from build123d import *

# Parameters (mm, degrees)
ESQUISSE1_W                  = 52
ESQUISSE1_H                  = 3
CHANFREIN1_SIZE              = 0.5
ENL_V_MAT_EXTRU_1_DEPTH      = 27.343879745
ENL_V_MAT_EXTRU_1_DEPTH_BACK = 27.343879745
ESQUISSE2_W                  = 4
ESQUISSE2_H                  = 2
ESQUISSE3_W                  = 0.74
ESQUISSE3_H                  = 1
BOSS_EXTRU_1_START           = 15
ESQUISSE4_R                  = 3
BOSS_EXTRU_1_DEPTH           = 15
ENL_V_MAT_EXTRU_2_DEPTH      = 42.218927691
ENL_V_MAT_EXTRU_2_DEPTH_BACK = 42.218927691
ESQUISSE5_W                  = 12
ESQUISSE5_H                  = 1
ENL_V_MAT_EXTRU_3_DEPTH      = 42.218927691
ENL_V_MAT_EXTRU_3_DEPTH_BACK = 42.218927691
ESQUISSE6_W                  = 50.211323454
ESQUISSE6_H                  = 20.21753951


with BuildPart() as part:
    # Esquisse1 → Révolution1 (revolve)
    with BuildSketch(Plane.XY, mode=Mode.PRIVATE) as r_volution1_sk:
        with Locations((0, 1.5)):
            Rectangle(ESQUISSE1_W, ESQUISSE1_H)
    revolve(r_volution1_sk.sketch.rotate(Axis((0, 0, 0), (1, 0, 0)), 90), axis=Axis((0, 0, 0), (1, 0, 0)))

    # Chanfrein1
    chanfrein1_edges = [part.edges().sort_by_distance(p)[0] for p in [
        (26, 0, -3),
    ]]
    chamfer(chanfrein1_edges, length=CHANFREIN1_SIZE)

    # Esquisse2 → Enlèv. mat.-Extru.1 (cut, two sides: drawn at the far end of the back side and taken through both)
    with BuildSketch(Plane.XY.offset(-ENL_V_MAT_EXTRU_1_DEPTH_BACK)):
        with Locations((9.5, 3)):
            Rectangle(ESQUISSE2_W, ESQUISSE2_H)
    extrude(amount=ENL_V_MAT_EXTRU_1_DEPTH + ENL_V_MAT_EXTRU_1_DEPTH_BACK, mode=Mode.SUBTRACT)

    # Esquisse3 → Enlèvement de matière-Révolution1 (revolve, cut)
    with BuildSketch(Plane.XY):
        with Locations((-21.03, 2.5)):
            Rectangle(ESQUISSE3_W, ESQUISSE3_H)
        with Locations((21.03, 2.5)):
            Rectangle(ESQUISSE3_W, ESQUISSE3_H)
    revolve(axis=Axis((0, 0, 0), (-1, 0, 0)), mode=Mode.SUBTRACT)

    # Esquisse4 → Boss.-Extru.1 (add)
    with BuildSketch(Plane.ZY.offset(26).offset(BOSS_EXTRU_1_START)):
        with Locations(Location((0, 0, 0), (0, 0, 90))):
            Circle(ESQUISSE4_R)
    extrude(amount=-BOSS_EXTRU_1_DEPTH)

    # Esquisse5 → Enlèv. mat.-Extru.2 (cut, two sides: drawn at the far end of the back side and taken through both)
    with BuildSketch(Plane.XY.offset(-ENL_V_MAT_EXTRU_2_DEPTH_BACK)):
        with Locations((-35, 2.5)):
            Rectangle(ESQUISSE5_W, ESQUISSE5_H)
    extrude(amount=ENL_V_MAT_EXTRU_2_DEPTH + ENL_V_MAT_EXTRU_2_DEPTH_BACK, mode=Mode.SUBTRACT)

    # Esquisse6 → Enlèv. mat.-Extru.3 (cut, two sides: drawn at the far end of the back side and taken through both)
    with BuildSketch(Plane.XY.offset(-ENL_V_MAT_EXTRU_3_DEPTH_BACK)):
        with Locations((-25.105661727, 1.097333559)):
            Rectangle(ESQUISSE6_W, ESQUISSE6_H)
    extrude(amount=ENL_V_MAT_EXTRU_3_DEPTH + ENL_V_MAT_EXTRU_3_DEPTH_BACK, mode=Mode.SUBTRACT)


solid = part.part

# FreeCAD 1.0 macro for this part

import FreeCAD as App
import Part
import Sketcher

V = App.Vector
Q = App.Units.Quantity


def edges_at(feature, points):
    """Names of the edges that pass closest to the given points."""
    edges = feature.Shape.Edges
    near = lambda p: min(range(len(edges)), key=lambda i: edges[i].distToShape(Part.Vertex(*p))[0])
    return sorted({f"Edge{near(p) + 1}" for p in points})

doc = App.newDocument("Part")
body = doc.addObject("PartDesign::Body", "Body")

sketch1 = body.newObject("Sketcher::SketchObject", "Sketch")
sketch1.AttachmentSupport = (doc.getObject("XY_Plane"), [""])
sketch1.MapMode = "FlatFace"
sketch1.addGeometry([
    Part.LineSegment(V(-26, 3, 0), V(-26, 0, 0)),
    Part.LineSegment(V(-26, 0, 0), V(26, 0, 0)),
    Part.LineSegment(V(26, 0, 0), V(26, 3, 0)),
    Part.LineSegment(V(26, 3, 0), V(-26, 3, 0)),
], False)
sketch1.addConstraint([
    Sketcher.Constraint("Coincident", 0, 2, 1, 1),
    Sketcher.Constraint("Coincident", 1, 2, 2, 1),
    Sketcher.Constraint("Coincident", 2, 2, 3, 1),
    Sketcher.Constraint("Coincident", 3, 2, 0, 1),
    Sketcher.Constraint("Vertical", 0),
    Sketcher.Constraint("Horizontal", 1),
    Sketcher.Constraint("Vertical", 2),
    Sketcher.Constraint("Horizontal", 3),
    Sketcher.Constraint("Symmetric", 0, 2, 1, 2, -1, 1),
    Sketcher.Constraint("DistanceX", 1, 1, 1, 2, Q("52 mm")),
    Sketcher.Constraint("DistanceY", 0, 2, 0, 1, Q("3 mm")),
])
revolution = body.newObject("PartDesign::Revolution", "Revolution")
revolution.Profile = sketch1
revolution.ReferenceAxis = (sketch1, ["H_Axis"])
revolution.Angle = 360
doc.recompute()

chamfer = body.newObject("PartDesign::Chamfer", "Chamfer")
chamfer.Base = (revolution, edges_at(revolution, [(26, 0, -3)]))
chamfer.Size = 0.5

sketch2 = body.newObject("Sketcher::SketchObject", "Sketch001")
sketch2.AttachmentSupport = (doc.getObject("XY_Plane"), [""])
sketch2.MapMode = "FlatFace"
sketch2.addGeometry([
    Part.LineSegment(V(7.5, 4, 0), V(7.5, 2, 0)),
    Part.LineSegment(V(7.5, 2, 0), V(11.5, 2, 0)),
    Part.LineSegment(V(11.5, 2, 0), V(11.5, 4, 0)),
    Part.LineSegment(V(11.5, 4, 0), V(7.5, 4, 0)),
], False)
sketch2.addConstraint([
    Sketcher.Constraint("Coincident", 0, 2, 1, 1),
    Sketcher.Constraint("Coincident", 1, 2, 2, 1),
    Sketcher.Constraint("Coincident", 2, 2, 3, 1),
    Sketcher.Constraint("Coincident", 3, 2, 0, 1),
    Sketcher.Constraint("Vertical", 0),
    Sketcher.Constraint("Horizontal", 1),
    Sketcher.Constraint("Vertical", 2),
    Sketcher.Constraint("Horizontal", 3),
    Sketcher.Constraint("DistanceX", 1, 1, 1, 2, Q("4 mm")),
    Sketcher.Constraint("DistanceY", 0, 2, 0, 1, Q("2 mm")),
    Sketcher.Constraint("DistanceY", -1, 1, 0, 2, Q("2 mm")),
    Sketcher.Constraint("DistanceX", -1, 1, 0, 2, Q("7.5 mm")),
])
pocket1 = body.newObject("PartDesign::Pocket", "Pocket")
pocket1.Profile = sketch2
pocket1.Type = "ThroughAll"
pocket1.Midplane = True

sketch3 = body.newObject("Sketcher::SketchObject", "Sketch002")
sketch3.AttachmentSupport = (doc.getObject("XY_Plane"), [""])
sketch3.MapMode = "FlatFace"
sketch3.addGeometry([
    Part.LineSegment(V(-21.4, 3, 0), V(-21.4, 2, 0)),
    Part.LineSegment(V(-21.4, 2, 0), V(-20.66, 2, 0)),
    Part.LineSegment(V(-20.66, 2, 0), V(-20.66, 3, 0)),
    Part.LineSegment(V(-20.66, 3, 0), V(-21.4, 3, 0)),
    Part.LineSegment(V(20.66, 3, 0), V(20.66, 2, 0)),
    Part.LineSegment(V(20.66, 2, 0), V(21.4, 2, 0)),
    Part.LineSegment(V(21.4, 2, 0), V(21.4, 3, 0)),
    Part.LineSegment(V(21.4, 3, 0), V(20.66, 3, 0)),
], False)
sketch3.addConstraint([
    Sketcher.Constraint("Coincident", 0, 2, 1, 1),
    Sketcher.Constraint("Coincident", 1, 2, 2, 1),
    Sketcher.Constraint("Coincident", 2, 2, 3, 1),
    Sketcher.Constraint("Coincident", 3, 2, 0, 1),
    Sketcher.Constraint("Coincident", 4, 2, 5, 1),
    Sketcher.Constraint("Coincident", 5, 2, 6, 1),
    Sketcher.Constraint("Coincident", 6, 2, 7, 1),
    Sketcher.Constraint("Coincident", 7, 2, 4, 1),
    Sketcher.Constraint("Vertical", 0),
    Sketcher.Constraint("Horizontal", 1),
    Sketcher.Constraint("Vertical", 2),
    Sketcher.Constraint("Horizontal", 3),
    Sketcher.Constraint("Vertical", 4),
    Sketcher.Constraint("Horizontal", 5),
    Sketcher.Constraint("Vertical", 6),
    Sketcher.Constraint("Horizontal", 7),
    Sketcher.Constraint("Symmetric", 1, 2, 4, 2, -2),
    Sketcher.Constraint("Symmetric", 3, 2, 6, 2, -2),
    Sketcher.Constraint("DistanceY", 0, 2, 0, 1, Q("1 mm")),
    Sketcher.Constraint("DistanceY", -1, 1, 0, 2, Q("2 mm")),
    Sketcher.Constraint("DistanceX", 1, 1, 1, 2, Q("0.74 mm")),
    Sketcher.Constraint("DistanceX", 0, 2, -1, 1, Q("21.4 mm")),
])
groove = body.newObject("PartDesign::Groove", "Groove")
groove.Profile = sketch3
groove.ReferenceAxis = (sketch3, ["H_Axis"])
groove.Angle = 360

sketch4 = body.newObject("Sketcher::SketchObject", "Sketch003")
sketch4.AttachmentSupport = (doc.getObject("YZ_Plane"), [""])
sketch4.MapMode = "FlatFace"
sketch4.AttachmentOffset = App.Placement(V(0, 0, -41), App.Rotation())
sketch4.addGeometry(Part.Circle(V(0, 0, 0), V(0, 0, 1), 3), False)
sketch4.addConstraint([
    Sketcher.Constraint("Coincident", 0, 3, -1, 1),
    Sketcher.Constraint("Diameter", 0, Q("6 mm")),
])
pad1 = body.newObject("PartDesign::Pad", "Pad")
pad1.Profile = sketch4
pad1.Length = 15

sketch5 = body.newObject("Sketcher::SketchObject", "Sketch004")
sketch5.AttachmentSupport = (doc.getObject("XY_Plane"), [""])
sketch5.MapMode = "FlatFace"
sketch5.addGeometry([
    Part.LineSegment(V(-41, 3, 0), V(-41, 2, 0)),
    Part.LineSegment(V(-41, 2, 0), V(-29, 2, 0)),
    Part.LineSegment(V(-29, 2, 0), V(-29, 3, 0)),
    Part.LineSegment(V(-29, 3, 0), V(-41, 3, 0)),
], False)
sketch5.addConstraint([
    Sketcher.Constraint("Coincident", 0, 2, 1, 1),
    Sketcher.Constraint("Coincident", 1, 2, 2, 1),
    Sketcher.Constraint("Coincident", 2, 2, 3, 1),
    Sketcher.Constraint("Coincident", 3, 2, 0, 1),
    Sketcher.Constraint("Vertical", 0),
    Sketcher.Constraint("Horizontal", 1),
    Sketcher.Constraint("Vertical", 2),
    Sketcher.Constraint("Horizontal", 3),
    Sketcher.Constraint("DistanceX", 1, 1, 1, 2, Q("12 mm")),
    Sketcher.Constraint("DistanceY", 0, 2, 0, 1, Q("1 mm")),
    Sketcher.Constraint("DistanceX", 0, 2, -1, 1, Q("41 mm")),
    Sketcher.Constraint("DistanceY", -1, 1, 0, 2, Q("2 mm")),
])
pocket2 = body.newObject("PartDesign::Pocket", "Pocket001")
pocket2.Profile = sketch5
pocket2.Type = "ThroughAll"
pocket2.Midplane = True

sketch6 = body.newObject("Sketcher::SketchObject", "Sketch005")
sketch6.AttachmentSupport = (doc.getObject("XY_Plane"), [""])
sketch6.MapMode = "FlatFace"
sketch6.addGeometry([
    Part.LineSegment(V(-50.211323, 11.206103, 0), V(-50.211323, -9.011436, 0)),
    Part.LineSegment(V(-50.211323, -9.011436, 0), V(0, -9.011436, 0)),
    Part.LineSegment(V(0, -9.011436, 0), V(0, 11.206103, 0)),
    Part.LineSegment(V(0, 11.206103, 0), V(-50.211323, 11.206103, 0)),
], False)
sketch6.addConstraint([
    Sketcher.Constraint("Coincident", 0, 2, 1, 1),
    Sketcher.Constraint("Coincident", 1, 2, 2, 1),
    Sketcher.Constraint("Coincident", 2, 2, 3, 1),
    Sketcher.Constraint("Coincident", 3, 2, 0, 1),
    Sketcher.Constraint("Vertical", 0),
    Sketcher.Constraint("Horizontal", 1),
    Sketcher.Constraint("Vertical", 2),
    Sketcher.Constraint("Horizontal", 3),
    Sketcher.Constraint("PointOnObject", 1, 2, -2),
    Sketcher.Constraint("DistanceY", 0, 2, 0, 1, Q("20.21754 mm")),
    Sketcher.Constraint("DistanceX", 1, 1, 1, 2, Q("50.211323 mm")),
    Sketcher.Constraint("DistanceY", 0, 2, -1, 1, Q("9.011436 mm")),
])
pocket3 = body.newObject("PartDesign::Pocket", "Pocket002")
pocket3.Profile = sketch6
pocket3.Type = "ThroughAll"
pocket3.Midplane = True

doc.recompute()
